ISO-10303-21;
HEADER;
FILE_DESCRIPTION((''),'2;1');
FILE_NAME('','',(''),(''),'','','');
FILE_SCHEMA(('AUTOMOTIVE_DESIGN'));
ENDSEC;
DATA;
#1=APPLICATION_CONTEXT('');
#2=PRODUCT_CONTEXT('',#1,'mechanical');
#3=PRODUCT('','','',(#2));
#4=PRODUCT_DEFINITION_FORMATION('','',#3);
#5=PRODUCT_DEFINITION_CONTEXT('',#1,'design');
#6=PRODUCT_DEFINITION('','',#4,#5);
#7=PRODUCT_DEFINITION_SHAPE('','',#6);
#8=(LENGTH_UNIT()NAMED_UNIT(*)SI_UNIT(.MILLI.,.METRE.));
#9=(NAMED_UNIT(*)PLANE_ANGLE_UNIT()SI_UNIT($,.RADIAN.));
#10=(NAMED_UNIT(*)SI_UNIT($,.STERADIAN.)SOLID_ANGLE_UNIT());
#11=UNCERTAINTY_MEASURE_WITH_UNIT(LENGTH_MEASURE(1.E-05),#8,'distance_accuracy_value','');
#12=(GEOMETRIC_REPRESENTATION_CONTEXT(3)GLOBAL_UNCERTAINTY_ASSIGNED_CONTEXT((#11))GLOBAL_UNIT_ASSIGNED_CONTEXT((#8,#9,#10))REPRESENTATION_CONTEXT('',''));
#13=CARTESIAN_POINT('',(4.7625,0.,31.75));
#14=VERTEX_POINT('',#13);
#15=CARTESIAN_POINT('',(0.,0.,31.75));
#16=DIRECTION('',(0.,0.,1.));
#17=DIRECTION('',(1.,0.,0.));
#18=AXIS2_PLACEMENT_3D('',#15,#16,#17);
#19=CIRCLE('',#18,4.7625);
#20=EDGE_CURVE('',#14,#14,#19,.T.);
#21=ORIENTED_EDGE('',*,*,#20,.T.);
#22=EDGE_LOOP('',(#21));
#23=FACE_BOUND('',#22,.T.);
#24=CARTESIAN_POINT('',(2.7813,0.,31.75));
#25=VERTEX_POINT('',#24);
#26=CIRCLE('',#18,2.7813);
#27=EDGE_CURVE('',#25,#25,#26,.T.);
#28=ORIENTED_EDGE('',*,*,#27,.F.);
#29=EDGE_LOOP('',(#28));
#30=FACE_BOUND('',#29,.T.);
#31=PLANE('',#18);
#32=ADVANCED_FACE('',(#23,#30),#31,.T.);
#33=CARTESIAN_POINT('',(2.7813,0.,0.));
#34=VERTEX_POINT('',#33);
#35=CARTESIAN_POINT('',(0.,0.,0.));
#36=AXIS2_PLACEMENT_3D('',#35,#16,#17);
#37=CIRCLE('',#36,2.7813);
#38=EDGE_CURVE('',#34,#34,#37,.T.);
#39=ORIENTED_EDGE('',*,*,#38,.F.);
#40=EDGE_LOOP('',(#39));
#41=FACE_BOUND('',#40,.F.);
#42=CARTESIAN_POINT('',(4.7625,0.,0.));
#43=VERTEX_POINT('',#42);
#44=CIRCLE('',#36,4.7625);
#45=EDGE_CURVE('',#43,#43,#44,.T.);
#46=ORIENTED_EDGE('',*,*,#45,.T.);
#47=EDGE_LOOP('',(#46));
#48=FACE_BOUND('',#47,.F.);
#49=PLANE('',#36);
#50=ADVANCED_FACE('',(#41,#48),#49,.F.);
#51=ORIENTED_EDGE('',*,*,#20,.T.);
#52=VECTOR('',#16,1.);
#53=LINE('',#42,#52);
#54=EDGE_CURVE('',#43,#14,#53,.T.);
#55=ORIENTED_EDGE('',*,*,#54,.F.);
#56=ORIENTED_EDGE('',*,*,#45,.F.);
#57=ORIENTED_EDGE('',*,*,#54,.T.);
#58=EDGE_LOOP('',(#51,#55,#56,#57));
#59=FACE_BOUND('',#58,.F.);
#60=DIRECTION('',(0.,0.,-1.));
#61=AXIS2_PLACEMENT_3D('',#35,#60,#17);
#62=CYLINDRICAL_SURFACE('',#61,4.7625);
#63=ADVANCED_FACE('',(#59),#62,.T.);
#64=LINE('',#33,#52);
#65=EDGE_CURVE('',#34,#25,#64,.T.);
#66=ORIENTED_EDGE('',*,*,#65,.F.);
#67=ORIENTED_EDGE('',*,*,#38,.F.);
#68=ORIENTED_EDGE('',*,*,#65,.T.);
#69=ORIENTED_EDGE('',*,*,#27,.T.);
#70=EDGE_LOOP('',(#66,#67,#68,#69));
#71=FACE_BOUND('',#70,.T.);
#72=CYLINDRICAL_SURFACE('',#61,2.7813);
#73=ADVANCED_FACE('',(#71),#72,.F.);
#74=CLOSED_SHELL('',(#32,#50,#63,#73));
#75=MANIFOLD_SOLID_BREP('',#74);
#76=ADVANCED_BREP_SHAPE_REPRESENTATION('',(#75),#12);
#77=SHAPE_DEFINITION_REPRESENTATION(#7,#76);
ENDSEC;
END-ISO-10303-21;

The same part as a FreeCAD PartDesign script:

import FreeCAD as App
import Part
import Sketcher

V = App.Vector
Q = App.Units.Quantity

doc = App.newDocument("Part")
params = doc.addObject("Spreadsheet::Sheet", "Params")
for row, (alias, value) in enumerate([
    ("sketch1_diameter", "0.375 in"),
    ("sketch1_diameter2", "0.219 in"),
    ("pad1_length", "1.25 in"),
], start=1):
    params.set(f"A{row}", alias)
    params.set(f"B{row}", "=" + value)
    params.setAlias(f"B{row}", alias)

body = doc.addObject("PartDesign::Body", "Body")

sketch1 = body.newObject("Sketcher::SketchObject", "Sketch")
sketch1.AttachmentSupport = (doc.getObject("XY_Plane"), [""])
sketch1.MapMode = "FlatFace"
sketch1.addGeometry(Part.Circle(V(0, 0, 0), V(0, 0, 1), 4.8), False)
sketch1.addGeometry(Part.Circle(V(0, 0, 0), V(0, 0, 1), 2.8), False)
sketch1.addConstraint(Sketcher.Constraint("Coincident", 0, 3, -1, 1))
sketch1.addConstraint(Sketcher.Constraint("Coincident", 1, 3, -1, 1))
sketch1.addConstraint(Sketcher.Constraint("Diameter", 0, Q("0.375 in")))
sketch1.addConstraint(Sketcher.Constraint("Diameter", 1, Q("0.219 in")))
sketch1.setExpression("Constraints[2]", "Params.sketch1_diameter")
sketch1.setExpression("Constraints[3]", "Params.sketch1_diameter2")
pad1 = body.newObject("PartDesign::Pad", "Pad")
pad1.Profile = sketch1
pad1.setExpression("Length", "Params.pad1_length")

doc.recompute()
